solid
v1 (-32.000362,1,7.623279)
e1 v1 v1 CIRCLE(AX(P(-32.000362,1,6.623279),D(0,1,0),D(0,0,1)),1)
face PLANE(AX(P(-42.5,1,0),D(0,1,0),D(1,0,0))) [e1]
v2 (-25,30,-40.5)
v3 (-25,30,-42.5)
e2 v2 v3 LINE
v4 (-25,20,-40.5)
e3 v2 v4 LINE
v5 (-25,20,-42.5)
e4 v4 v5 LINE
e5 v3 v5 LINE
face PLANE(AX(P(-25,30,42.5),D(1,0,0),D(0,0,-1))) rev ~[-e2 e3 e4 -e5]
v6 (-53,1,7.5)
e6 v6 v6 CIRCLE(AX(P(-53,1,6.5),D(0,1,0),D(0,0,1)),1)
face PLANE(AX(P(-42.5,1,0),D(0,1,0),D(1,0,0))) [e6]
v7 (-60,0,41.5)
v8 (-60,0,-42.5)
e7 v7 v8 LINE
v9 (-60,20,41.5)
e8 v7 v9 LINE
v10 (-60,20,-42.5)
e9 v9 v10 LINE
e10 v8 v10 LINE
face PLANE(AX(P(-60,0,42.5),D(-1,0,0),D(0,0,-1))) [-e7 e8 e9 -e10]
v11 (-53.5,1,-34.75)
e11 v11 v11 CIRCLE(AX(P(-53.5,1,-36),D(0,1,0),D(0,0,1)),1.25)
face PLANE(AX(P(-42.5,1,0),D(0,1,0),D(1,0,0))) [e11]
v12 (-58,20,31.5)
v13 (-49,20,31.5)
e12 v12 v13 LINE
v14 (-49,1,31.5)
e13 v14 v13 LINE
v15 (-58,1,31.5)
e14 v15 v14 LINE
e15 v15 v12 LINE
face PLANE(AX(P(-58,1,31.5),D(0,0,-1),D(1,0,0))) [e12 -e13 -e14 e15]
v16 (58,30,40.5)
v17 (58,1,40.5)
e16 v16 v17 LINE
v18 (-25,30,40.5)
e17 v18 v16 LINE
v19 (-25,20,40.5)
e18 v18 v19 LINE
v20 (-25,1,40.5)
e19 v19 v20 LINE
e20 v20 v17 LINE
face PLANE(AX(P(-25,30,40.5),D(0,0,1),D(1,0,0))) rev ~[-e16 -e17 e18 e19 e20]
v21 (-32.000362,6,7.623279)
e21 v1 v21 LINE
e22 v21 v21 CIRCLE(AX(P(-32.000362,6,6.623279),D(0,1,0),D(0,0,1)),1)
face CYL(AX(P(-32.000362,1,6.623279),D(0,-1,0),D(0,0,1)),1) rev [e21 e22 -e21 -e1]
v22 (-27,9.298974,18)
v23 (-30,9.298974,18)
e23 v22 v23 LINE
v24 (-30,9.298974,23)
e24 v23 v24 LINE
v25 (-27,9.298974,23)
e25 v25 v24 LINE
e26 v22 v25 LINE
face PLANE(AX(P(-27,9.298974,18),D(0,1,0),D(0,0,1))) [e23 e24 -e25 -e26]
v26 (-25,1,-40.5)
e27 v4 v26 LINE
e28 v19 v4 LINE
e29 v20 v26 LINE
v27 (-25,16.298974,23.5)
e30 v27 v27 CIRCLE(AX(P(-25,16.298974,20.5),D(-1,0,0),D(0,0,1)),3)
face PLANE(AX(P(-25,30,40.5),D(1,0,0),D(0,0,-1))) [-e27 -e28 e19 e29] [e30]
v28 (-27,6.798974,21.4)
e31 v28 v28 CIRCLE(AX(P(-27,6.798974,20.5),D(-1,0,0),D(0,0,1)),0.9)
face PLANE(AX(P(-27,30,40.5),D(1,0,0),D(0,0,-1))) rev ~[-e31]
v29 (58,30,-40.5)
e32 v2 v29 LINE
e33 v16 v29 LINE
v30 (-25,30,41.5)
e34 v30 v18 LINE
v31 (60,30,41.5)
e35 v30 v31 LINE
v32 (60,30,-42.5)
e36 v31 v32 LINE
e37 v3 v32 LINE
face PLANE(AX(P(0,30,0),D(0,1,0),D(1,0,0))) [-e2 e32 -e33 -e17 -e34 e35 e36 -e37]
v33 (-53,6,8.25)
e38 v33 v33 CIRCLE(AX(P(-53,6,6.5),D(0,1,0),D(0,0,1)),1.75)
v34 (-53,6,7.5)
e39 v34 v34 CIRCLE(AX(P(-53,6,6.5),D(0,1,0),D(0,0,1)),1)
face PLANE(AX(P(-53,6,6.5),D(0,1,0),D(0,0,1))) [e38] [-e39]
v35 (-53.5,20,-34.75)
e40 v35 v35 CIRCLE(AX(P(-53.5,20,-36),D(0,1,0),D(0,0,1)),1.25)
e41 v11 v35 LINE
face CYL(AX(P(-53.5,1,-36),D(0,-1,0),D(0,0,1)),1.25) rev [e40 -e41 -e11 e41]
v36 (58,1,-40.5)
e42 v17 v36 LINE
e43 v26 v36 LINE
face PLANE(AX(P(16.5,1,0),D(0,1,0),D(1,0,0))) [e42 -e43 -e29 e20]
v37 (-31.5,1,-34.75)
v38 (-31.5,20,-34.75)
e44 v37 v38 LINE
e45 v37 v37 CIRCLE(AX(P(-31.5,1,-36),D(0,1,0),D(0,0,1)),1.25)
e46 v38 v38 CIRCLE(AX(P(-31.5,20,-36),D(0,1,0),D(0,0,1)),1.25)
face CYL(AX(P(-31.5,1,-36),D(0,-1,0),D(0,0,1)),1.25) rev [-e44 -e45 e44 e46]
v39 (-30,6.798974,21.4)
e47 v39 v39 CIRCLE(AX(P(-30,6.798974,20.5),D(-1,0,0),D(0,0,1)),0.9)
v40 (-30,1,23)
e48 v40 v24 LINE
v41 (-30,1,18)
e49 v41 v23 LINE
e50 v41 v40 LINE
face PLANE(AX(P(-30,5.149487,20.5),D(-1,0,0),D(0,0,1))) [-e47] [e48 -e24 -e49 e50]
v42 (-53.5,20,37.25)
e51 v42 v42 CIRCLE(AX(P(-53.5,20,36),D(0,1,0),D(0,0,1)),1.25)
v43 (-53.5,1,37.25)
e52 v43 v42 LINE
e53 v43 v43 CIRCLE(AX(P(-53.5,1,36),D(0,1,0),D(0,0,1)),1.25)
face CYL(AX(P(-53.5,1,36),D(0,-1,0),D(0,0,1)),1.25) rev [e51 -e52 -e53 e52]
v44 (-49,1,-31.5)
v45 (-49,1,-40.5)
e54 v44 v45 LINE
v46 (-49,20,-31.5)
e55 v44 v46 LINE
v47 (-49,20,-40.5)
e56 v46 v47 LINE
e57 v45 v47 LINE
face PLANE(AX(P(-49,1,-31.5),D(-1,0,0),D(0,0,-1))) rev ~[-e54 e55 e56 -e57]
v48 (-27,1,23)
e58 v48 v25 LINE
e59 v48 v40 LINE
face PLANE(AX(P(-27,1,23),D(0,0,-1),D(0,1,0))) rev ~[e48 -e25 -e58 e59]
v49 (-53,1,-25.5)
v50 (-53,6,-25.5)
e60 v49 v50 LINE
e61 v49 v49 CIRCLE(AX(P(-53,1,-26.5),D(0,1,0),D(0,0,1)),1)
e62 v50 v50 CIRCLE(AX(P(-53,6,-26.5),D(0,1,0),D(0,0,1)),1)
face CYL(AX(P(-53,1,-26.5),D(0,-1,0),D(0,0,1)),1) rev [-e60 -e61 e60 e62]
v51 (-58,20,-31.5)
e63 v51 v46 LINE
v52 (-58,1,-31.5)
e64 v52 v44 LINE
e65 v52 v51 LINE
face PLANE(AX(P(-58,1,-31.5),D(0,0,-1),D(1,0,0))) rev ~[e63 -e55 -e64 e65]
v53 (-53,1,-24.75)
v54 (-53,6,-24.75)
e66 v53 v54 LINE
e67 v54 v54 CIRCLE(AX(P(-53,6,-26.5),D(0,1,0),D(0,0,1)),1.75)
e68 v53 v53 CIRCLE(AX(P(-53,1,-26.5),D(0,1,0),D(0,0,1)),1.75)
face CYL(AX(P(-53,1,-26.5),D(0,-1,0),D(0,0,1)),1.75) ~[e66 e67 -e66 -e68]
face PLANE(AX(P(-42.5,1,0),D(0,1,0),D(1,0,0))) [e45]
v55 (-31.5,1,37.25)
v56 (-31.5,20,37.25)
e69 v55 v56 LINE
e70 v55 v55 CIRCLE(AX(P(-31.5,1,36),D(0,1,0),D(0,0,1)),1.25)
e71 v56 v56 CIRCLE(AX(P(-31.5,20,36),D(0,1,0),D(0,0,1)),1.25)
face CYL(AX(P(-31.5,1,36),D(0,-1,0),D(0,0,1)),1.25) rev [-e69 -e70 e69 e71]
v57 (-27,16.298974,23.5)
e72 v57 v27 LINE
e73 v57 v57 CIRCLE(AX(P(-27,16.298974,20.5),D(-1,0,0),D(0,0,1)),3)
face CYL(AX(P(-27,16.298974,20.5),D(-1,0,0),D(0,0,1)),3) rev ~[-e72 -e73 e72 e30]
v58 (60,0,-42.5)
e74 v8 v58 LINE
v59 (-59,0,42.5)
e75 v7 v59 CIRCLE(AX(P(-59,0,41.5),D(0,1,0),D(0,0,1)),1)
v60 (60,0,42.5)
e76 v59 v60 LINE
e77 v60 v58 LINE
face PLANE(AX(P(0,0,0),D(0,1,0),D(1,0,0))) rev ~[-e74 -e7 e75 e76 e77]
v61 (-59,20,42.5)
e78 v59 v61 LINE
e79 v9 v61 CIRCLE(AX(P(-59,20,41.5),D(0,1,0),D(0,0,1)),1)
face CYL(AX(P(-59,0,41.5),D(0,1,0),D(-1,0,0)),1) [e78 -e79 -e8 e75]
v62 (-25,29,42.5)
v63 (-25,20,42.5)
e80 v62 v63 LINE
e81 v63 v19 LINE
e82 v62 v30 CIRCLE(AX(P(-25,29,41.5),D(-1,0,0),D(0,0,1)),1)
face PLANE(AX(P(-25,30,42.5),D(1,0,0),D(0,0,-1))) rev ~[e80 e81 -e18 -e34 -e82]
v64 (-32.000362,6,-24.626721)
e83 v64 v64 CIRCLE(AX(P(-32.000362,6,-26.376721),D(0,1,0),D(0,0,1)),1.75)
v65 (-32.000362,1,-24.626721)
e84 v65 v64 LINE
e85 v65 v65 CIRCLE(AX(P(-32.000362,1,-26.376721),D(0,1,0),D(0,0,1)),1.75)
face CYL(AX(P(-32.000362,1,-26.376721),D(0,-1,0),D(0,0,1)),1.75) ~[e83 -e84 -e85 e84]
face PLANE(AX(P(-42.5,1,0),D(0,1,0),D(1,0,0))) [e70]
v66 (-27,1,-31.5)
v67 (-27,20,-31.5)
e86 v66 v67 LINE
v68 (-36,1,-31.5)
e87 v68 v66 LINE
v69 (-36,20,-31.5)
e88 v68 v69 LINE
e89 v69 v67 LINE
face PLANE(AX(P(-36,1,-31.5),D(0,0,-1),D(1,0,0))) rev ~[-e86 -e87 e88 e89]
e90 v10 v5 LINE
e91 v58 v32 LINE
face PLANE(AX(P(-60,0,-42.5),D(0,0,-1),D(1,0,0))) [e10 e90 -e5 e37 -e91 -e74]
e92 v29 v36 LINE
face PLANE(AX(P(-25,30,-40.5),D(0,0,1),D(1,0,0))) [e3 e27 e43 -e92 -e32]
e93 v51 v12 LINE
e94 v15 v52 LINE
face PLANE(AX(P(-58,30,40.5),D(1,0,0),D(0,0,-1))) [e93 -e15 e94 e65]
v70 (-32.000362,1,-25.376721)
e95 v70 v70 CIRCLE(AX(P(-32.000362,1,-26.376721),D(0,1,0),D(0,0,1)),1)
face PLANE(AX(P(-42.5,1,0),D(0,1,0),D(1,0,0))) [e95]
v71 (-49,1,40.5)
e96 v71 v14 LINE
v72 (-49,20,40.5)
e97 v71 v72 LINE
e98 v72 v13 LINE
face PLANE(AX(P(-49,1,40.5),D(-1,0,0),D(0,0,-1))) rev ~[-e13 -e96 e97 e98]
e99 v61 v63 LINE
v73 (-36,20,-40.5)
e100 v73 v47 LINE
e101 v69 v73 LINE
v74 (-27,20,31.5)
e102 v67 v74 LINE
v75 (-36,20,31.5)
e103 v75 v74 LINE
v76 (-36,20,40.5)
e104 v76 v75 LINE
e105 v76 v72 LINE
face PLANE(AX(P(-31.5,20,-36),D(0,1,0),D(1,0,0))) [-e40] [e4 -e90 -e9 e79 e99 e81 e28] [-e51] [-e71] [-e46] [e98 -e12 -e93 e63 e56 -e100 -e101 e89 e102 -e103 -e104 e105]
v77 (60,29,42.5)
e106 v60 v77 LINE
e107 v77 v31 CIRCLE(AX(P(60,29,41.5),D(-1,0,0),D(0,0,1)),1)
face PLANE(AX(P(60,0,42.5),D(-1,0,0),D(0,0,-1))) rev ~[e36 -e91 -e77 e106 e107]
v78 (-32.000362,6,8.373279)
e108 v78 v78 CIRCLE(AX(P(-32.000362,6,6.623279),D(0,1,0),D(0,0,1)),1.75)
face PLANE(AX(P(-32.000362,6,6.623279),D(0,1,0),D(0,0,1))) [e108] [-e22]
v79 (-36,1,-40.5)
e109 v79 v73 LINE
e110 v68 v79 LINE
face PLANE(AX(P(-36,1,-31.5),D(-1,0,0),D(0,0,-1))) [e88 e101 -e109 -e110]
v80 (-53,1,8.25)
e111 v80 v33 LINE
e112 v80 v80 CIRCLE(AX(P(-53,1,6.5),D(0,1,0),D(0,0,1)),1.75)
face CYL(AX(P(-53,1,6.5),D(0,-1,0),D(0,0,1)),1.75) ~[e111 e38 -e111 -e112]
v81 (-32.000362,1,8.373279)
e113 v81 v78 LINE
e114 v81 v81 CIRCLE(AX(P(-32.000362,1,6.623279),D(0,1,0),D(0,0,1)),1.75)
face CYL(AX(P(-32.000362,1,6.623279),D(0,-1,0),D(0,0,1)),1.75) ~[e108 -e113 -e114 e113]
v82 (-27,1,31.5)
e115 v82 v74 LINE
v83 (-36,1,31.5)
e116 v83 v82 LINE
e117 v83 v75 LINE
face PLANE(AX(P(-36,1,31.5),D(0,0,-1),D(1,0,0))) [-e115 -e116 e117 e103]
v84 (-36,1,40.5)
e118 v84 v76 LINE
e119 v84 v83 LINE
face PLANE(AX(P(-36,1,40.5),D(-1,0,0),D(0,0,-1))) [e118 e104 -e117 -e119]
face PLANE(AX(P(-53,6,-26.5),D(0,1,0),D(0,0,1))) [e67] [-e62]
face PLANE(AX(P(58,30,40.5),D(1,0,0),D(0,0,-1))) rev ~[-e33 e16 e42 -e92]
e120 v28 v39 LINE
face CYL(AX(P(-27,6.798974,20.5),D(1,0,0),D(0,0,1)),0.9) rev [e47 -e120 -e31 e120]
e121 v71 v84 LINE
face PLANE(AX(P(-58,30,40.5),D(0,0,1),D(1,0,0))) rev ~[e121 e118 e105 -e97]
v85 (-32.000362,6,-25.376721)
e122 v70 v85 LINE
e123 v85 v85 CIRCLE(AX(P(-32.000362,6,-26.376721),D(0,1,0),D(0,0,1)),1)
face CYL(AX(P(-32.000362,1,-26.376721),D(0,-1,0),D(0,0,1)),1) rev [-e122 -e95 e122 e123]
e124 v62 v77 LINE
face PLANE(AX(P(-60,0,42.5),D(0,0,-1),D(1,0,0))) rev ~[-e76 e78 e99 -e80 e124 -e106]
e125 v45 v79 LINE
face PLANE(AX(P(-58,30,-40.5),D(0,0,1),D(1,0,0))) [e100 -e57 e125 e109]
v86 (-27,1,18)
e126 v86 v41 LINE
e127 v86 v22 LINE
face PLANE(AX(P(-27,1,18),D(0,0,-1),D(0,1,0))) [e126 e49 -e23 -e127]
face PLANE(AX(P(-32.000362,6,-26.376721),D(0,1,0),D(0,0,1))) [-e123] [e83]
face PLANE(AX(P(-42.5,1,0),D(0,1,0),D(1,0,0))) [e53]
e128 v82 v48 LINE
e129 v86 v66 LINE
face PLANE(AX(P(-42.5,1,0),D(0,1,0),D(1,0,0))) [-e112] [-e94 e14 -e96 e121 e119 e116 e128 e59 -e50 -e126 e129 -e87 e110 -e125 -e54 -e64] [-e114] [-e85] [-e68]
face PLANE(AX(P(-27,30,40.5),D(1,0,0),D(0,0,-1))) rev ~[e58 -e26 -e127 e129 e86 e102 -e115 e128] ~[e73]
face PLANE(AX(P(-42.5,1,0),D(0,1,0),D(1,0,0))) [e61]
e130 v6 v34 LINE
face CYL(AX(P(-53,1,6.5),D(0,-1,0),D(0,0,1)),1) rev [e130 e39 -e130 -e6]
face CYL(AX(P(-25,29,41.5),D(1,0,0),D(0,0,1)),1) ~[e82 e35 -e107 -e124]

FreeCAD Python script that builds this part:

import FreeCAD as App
import Part
import Sketcher
from FreeCAD import Vector


def edges_at(feature, points):
    """Names of the edges that pass closest to the given points."""
    edges = feature.Shape.Edges
    near = lambda p: min(range(len(edges)), key=lambda i: edges[i].distToShape(Part.Vertex(*p))[0])
    return sorted({f"Edge{near(p) + 1}" for p in points})


def add_polygon(sketch, points):
    """Adds a closed chain of lines whose ends are joined by coincident constraints."""
    first, n = sketch.GeometryCount, len(points)
    for a, b in zip(points, points[1:] + points[:1]):
        sketch.addGeometry(Part.LineSegment(App.Vector(*a, 0), App.Vector(*b, 0)), False)
    for i in range(n):
        sketch.addConstraint(Sketcher.Constraint("Coincident", first + i, 2, first + (i + 1) % n, 1))

doc = App.newDocument("Part")
body = doc.addObject("PartDesign::Body", "Body")

# Sketch on XZ plane
sketch1 = body.newObject("Sketcher::SketchObject", "Sketch")
sketch1.AttachmentSupport = (doc.getObject("XZ_Plane"), [""])
sketch1.MapMode = "FlatFace"
add_polygon(sketch1, [(-60, -42.5), (-60, 42.5), (60, 42.5), (60, -42.5)])  # lines 0-3
sketch1.addConstraint([
    Sketcher.Constraint("Vertical", 0),
    Sketcher.Constraint("Horizontal", 1),
    Sketcher.Constraint("Vertical", 2),
    Sketcher.Constraint("Horizontal", 3),
    Sketcher.Constraint("Symmetric", 0, 2, 2, 2, -1, 1),
    Sketcher.Constraint("DistanceX", 1, 1, 1, 2, 120.0),
    Sketcher.Constraint("DistanceY", 0, 1, 0, 2, 85.0),
])
pad1 = body.newObject("PartDesign::Pad", "Pad")
pad1.Profile = sketch1
pad1.Length = 30
pad1.Reversed = True

# Sketch on XZ plane
sketch2 = body.newObject("Sketcher::SketchObject", "Sketch001")
sketch2.AttachmentSupport = (doc.getObject("XZ_Plane"), [""])
sketch2.MapMode = "FlatFace"
sketch2.AttachmentOffset = App.Placement(Vector(0, 0, -30), App.Rotation())
add_polygon(sketch2, [(-25, -40.5), (-25, 40.5), (58, 40.5), (58, -40.5)])  # lines 0-3
sketch2.addConstraint([
    Sketcher.Constraint("Vertical", 0),
    Sketcher.Constraint("Horizontal", 1),
    Sketcher.Constraint("Vertical", 2),
    Sketcher.Constraint("Horizontal", 3),
    Sketcher.Constraint("DistanceX", 1, 1, 1, 2, 83.0),
    Sketcher.Constraint("DistanceY", 0, 1, 0, 2, 81.0),
    Sketcher.Constraint("DistanceX", 0, 2, -1, 1, 25.0),
    Sketcher.Constraint("DistanceY", -1, 1, 0, 2, 40.5),
])
pocket1 = body.newObject("PartDesign::Pocket", "Pocket")
pocket1.Profile = sketch2
pocket1.Length = 29
pocket1.Reversed = True

# Sketch on XZ plane
sketch3 = body.newObject("Sketcher::SketchObject", "Sketch002")
sketch3.AttachmentSupport = (doc.getObject("XZ_Plane"), [""])
sketch3.MapMode = "FlatFace"
sketch3.AttachmentOffset = App.Placement(Vector(0, 0, -30), App.Rotation())
add_polygon(sketch3, [(-58, -40.5), (-58, 40.5), (-27, 40.5), (-27, -40.5)])  # lines 0-3
sketch3.addConstraint([
    Sketcher.Constraint("Vertical", 0),
    Sketcher.Constraint("Horizontal", 1),
    Sketcher.Constraint("Vertical", 2),
    Sketcher.Constraint("Horizontal", 3),
    Sketcher.Constraint("DistanceX", 1, 1, 1, 2, 31.0),
    Sketcher.Constraint("DistanceY", 0, 1, 0, 2, 81.0),
    Sketcher.Constraint("DistanceX", 0, 2, -1, 1, 58.0),
    Sketcher.Constraint("DistanceY", -1, 1, 0, 2, 40.5),
])
pocket2 = body.newObject("PartDesign::Pocket", "Pocket001")
pocket2.Profile = sketch3
pocket2.Length = 29
pocket2.Reversed = True

# Sketch on XZ plane
sketch4 = body.newObject("Sketcher::SketchObject", "Sketch003")
sketch4.AttachmentSupport = (doc.getObject("XZ_Plane"), [""])
sketch4.MapMode = "FlatFace"
sketch4.AttachmentOffset = App.Placement(Vector(0, 0, -30), App.Rotation())
add_polygon(sketch4, [(-60, -42.5), (-60, 42.5), (-25, 42.5), (-25, -42.5)])  # lines 0-3
sketch4.addConstraint([
    Sketcher.Constraint("Vertical", 0),
    Sketcher.Constraint("Horizontal", 1),
    Sketcher.Constraint("Vertical", 2),
    Sketcher.Constraint("Horizontal", 3),
    Sketcher.Constraint("DistanceX", 1, 1, 1, 2, 35.0),
    Sketcher.Constraint("DistanceY", 0, 1, 0, 2, 85.0),
    Sketcher.Constraint("DistanceX", 0, 2, -1, 1, 60.0),
    Sketcher.Constraint("DistanceY", -1, 1, 0, 2, 42.5),
])
pocket3 = body.newObject("PartDesign::Pocket", "Pocket002")
pocket3.Profile = sketch4
pocket3.Length = 10
pocket3.Reversed = True

# Sketch on XZ plane
sketch5 = body.newObject("Sketcher::SketchObject", "Sketch004")
sketch5.AttachmentSupport = (doc.getObject("XZ_Plane"), [""])
sketch5.MapMode = "FlatFace"
sketch5.AttachmentOffset = App.Placement(Vector(0, 0, -1), App.Rotation())
add_polygon(sketch5, [(-36, -40.5), (-36, -31.5), (-27, -31.5), (-27, -40.5)])  # lines 0-3
sketch5.addGeometry(Part.Circle(Vector(-31.5, -36, 0), Vector(0, 0, 1), 1.25), False)  # 4
add_polygon(sketch5, [(-58, -40.5), (-58, -31.5), (-49, -31.5), (-49, -40.5)])  # lines 5-8
sketch5.addGeometry(Part.Circle(Vector(-53.5, -36, 0), Vector(0, 0, 1), 1.25), False)  # 9
add_polygon(sketch5, [(-36, 31.5), (-36, 40.5), (-27, 40.5), (-27, 31.5)])  # lines 10-13
sketch5.addGeometry(Part.Circle(Vector(-31.5, 36, 0), Vector(0, 0, 1), 1.25), False)  # 14
add_polygon(sketch5, [(-58, 31.5), (-58, 40.5), (-49, 40.5), (-49, 31.5)])  # lines 15-18
sketch5.addGeometry(Part.Circle(Vector(-53.5, 36, 0), Vector(0, 0, 1), 1.25), False)  # 19
sketch5.addConstraint([
    Sketcher.Constraint("Vertical", 0),
    Sketcher.Constraint("Horizontal", 1),
    Sketcher.Constraint("Vertical", 2),
    Sketcher.Constraint("Horizontal", 3),
    Sketcher.Constraint("Vertical", 5),
    Sketcher.Constraint("Horizontal", 6),
    Sketcher.Constraint("Vertical", 7),
    Sketcher.Constraint("Horizontal", 8),
    Sketcher.Constraint("Vertical", 10),
    Sketcher.Constraint("Horizontal", 11),
    Sketcher.Constraint("Vertical", 12),
    Sketcher.Constraint("Horizontal", 13),
    Sketcher.Constraint("Vertical", 15),
    Sketcher.Constraint("Horizontal", 16),
    Sketcher.Constraint("Vertical", 17),
    Sketcher.Constraint("Horizontal", 18),
    Sketcher.Constraint("Equal", 4, 9),
    Sketcher.Constraint("Equal", 9, 14),
    Sketcher.Constraint("Equal", 14, 19),
    Sketcher.Constraint("Symmetric", 4, 3, 14, 3, -1),
    Sketcher.Constraint("Symmetric", 9, 3, 19, 3, -1),
    Sketcher.Constraint("Symmetric", 3, 2, 10, 2, -1),
    Sketcher.Constraint("Symmetric", 1, 2, 12, 2, -1),
    Sketcher.Constraint("Symmetric", 8, 2, 15, 2, -1),
    Sketcher.Constraint("Symmetric", 6, 2, 17, 2, -1),
    Sketcher.Constraint("Horizontal", 4, 3, 9, 3),
    Sketcher.Constraint("Horizontal", 1, 2, 5, 2),
    Sketcher.Constraint("Horizontal", 3, 2, 7, 2),
    Sketcher.Constraint("Equal", 3, 6),
    Sketcher.Constraint("Equal", 18, 0),
    Sketcher.Constraint("Diameter", 4, 2.5),
    Sketcher.Constraint("DistanceX", 1, 1, 1, 2, 9.0),
    Sketcher.Constraint("DistanceY", 4, 3, -1, 1, 36.0),
    Sketcher.Constraint("DistanceX", 0, 2, -1, 1, 36.0),
    Sketcher.Constraint("DistanceX", 5, 2, -1, 1, 58.0),
    Sketcher.Constraint("DistanceX", 9, 3, 4, 3, 22.0),
    Sketcher.Constraint("DistanceY", 0, 2, 10, 2, 72.0),
    Sketcher.Constraint("DistanceX", 4, 3, -1, 1, 31.5),
])
pad2 = body.newObject("PartDesign::Pad", "Pad001")
pad2.Profile = sketch5
pad2.Length = 19
pad2.Reversed = True

# Sketch on XZ plane
sketch6 = body.newObject("Sketcher::SketchObject", "Sketch005")
sketch6.AttachmentSupport = (doc.getObject("XZ_Plane"), [""])
sketch6.MapMode = "FlatFace"
sketch6.AttachmentOffset = App.Placement(Vector(0, 0, -1), App.Rotation())
sketch6.addGeometry([
    Part.Circle(Vector(-53, -26.5, 0), Vector(0, 0, 1), 1.75),  # 0
    Part.Circle(Vector(-53, -26.5, 0), Vector(0, 0, 1), 1),  # 1
    Part.Circle(Vector(-32.000362, -26.376721, 0), Vector(0, 0, 1), 1.75),  # 2
    Part.Circle(Vector(-32.000362, -26.376721, 0), Vector(0, 0, 1), 1),  # 3
    Part.Circle(Vector(-32.000362, 6.623279, 0), Vector(0, 0, 1), 1.75),  # 4
    Part.Circle(Vector(-32.000362, 6.623279, 0), Vector(0, 0, 1), 1),  # 5
    Part.Circle(Vector(-53, 6.5, 0), Vector(0, 0, 1), 1.75),  # 6
    Part.Circle(Vector(-53, 6.5, 0), Vector(0, 0, 1), 1),  # 7
], False)
sketch6.addConstraint([
    Sketcher.Constraint("Coincident", 1, 3, 0, 3),
    Sketcher.Constraint("Coincident", 3, 3, 2, 3),
    Sketcher.Constraint("Coincident", 5, 3, 4, 3),
    Sketcher.Constraint("Coincident", 7, 3, 6, 3),
    Sketcher.Constraint("Equal", 0, 2),
    Sketcher.Constraint("Equal", 1, 3),
    Sketcher.Constraint("Equal", 2, 4),
    Sketcher.Constraint("Equal", 3, 5),
    Sketcher.Constraint("Equal", 4, 6),
    Sketcher.Constraint("Equal", 5, 7),
    Sketcher.Constraint("Vertical", 3, 3, 4, 3),
    Sketcher.Constraint("Vertical", 1, 3, 6, 3),
    Sketcher.Constraint("Diameter", 1, 2.0),
    Sketcher.Constraint("Diameter", 0, 3.5),
    Sketcher.Constraint("DistanceX", 0, 3, -1, 1, 53.0),
    Sketcher.Constraint("DistanceY", 2, 3, 4, 3, 33.0),
    Sketcher.Constraint("DistanceY", 0, 3, 6, 3, 33.0),
    Sketcher.Constraint("DistanceY", 0, 3, -1, 1, 26.5),
    Sketcher.Constraint("DistanceX", 2, 3, -1, 1, 32.000362),
    Sketcher.Constraint("DistanceY", 2, 3, -1, 1, 26.376721),
])
pad3 = body.newObject("PartDesign::Pad", "Pad002")
pad3.Profile = sketch6
pad3.Length = 5
pad3.Reversed = True

# Sketch on YZ plane
sketch7 = body.newObject("Sketcher::SketchObject", "Sketch006")
sketch7.AttachmentSupport = (doc.getObject("YZ_Plane"), [""])
sketch7.MapMode = "FlatFace"
sketch7.AttachmentOffset = App.Placement(Vector(0, 0, -27), App.Rotation())
add_polygon(sketch7, [(9.298974, 18), (1, 18), (1, 23), (9.298974, 23)])  # lines 0-3
sketch7.addGeometry(Part.Circle(Vector(6.798974, 20.5, 0), Vector(0, 0, 1), 0.9), False)  # 4
sketch7.addConstraint([
    Sketcher.Constraint("Horizontal", 0),
    Sketcher.Constraint("Vertical", 1),
    Sketcher.Constraint("Horizontal", 2),
    Sketcher.Constraint("Vertical", 3),
    Sketcher.Constraint("Diameter", 4, 1.8),
    Sketcher.Constraint("DistanceY", 1, 1, 1, 2, 5.0),
    Sketcher.Constraint("DistanceX", -1, 1, 0, 2, 1.0),
    Sketcher.Constraint("DistanceY", -1, 1, 0, 2, 18.0),
    Sketcher.Constraint("DistanceY", -1, 1, 4, 3, 20.5),
    Sketcher.Constraint("DistanceX", 4, 3, 2, 2, 2.5),
    Sketcher.Constraint("DistanceX", 0, 2, 0, 1, 8.298974),
])
pad4 = body.newObject("PartDesign::Pad", "Pad003")
pad4.Profile = sketch7
pad4.Length = 3
pad4.Reversed = True

# Sketch on YZ plane
sketch8 = body.newObject("Sketcher::SketchObject", "Sketch007")
sketch8.AttachmentSupport = (doc.getObject("YZ_Plane"), [""])
sketch8.MapMode = "FlatFace"
sketch8.AttachmentOffset = App.Placement(Vector(0, 0, -27), App.Rotation())
sketch8.addGeometry(Part.Circle(Vector(16.298974, 20.5, 0), Vector(0, 0, 1), 3), False)
sketch8.addConstraint([
    Sketcher.Constraint("Diameter", 0, 6.0),
    Sketcher.Constraint("DistanceY", -1, 1, 0, 3, 20.5),
    Sketcher.Constraint("DistanceX", -1, 1, 0, 3, 16.298974),
])
pocket4 = body.newObject("PartDesign::Pocket", "Pocket003")
pocket4.Profile = sketch8
pocket4.Length = 2
pocket4.Reversed = True
doc.recompute()

fillet = body.newObject("PartDesign::Fillet", "Fillet")
fillet.Base = (pocket4, edges_at(pocket4, [(17.5, 30, 42.5), (-60, 10, 42.5)]))
fillet.Radius = 1

doc.recompute()
